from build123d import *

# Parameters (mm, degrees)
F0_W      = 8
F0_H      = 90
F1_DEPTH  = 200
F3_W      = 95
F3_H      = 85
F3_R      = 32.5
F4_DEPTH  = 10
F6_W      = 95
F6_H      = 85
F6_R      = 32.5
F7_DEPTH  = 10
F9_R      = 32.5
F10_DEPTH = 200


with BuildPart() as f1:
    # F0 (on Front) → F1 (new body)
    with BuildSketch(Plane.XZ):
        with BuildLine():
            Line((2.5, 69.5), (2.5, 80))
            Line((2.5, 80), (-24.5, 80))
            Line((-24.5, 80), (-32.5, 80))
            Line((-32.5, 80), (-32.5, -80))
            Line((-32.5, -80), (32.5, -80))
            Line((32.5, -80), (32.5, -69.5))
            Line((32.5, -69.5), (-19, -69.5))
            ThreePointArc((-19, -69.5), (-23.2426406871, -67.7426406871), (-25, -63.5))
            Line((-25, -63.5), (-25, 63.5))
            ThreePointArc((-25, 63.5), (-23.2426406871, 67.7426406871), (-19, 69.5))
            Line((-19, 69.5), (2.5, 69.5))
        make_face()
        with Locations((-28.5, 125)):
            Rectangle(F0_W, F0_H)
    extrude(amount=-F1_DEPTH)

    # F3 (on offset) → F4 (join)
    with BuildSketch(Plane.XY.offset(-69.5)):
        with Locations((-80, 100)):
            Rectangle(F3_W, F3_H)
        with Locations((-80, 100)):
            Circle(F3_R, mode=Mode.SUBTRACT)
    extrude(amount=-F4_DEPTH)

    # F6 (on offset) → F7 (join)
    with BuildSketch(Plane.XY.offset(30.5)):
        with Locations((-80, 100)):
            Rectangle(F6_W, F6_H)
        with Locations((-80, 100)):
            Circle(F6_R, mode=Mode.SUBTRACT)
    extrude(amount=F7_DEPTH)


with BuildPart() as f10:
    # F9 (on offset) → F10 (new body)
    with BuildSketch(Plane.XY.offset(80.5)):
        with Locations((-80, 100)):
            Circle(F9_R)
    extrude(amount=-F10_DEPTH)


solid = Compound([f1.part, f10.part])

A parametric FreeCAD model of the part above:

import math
import FreeCAD as App
import Part
import Sketcher
from FreeCAD import Vector

doc = App.newDocument("Part")
params = doc.addObject("Spreadsheet::Sheet", "Params")
for row, (alias, value) in enumerate([
    ("sketch1_radius", "6 mm"),
    ("sketch1_width", "27 mm"),
    ("sketch1_width2", "8 mm"),
    ("sketch1_width3", "65 mm"),
    ("sketch1_height", "90 mm"),
    ("pad1_length", "200 mm"),
    ("sketch2_diameter", "65 mm"),
    ("sketch2_width", "95 mm"),
    ("sketch2_height", "85 mm"),
    ("pad2_length", "10 mm"),
    ("sketch3_diameter", "65 mm"),
    ("sketch3_width", "95 mm"),
    ("sketch3_height", "85 mm"),
    ("pad3_length", "10 mm"),
    ("sketch4_diameter", "65 mm"),
    ("pad4_length", "200 mm"),
], start=1):
    params.set(f"A{row}", alias)
    params.set(f"B{row}", "=" + value)
    params.setAlias(f"B{row}", alias)

body = doc.addObject("PartDesign::Body", "Body")

# Sketch on XZ plane
sketch1 = body.newObject("Sketcher::SketchObject", "Sketch")
sketch1.AttachmentSupport = (doc.getObject("XZ_Plane"), [""])
sketch1.MapMode = "FlatFace"
sketch1.addGeometry(Part.LineSegment(Vector(2, 70, 0), Vector(2, 80, 0)), False)
sketch1.addGeometry(Part.LineSegment(Vector(2, 80, 0), Vector(-24, 80, 0)), False)
sketch1.addGeometry(Part.LineSegment(Vector(-24, 80, 0), Vector(-24, 170, 0)), False)
sketch1.addGeometry(Part.LineSegment(Vector(-24, 170, 0), Vector(-32, 170, 0)), False)
sketch1.addGeometry(Part.LineSegment(Vector(-32, 170, 0), Vector(-32, -80, 0)), False)
sketch1.addGeometry(Part.LineSegment(Vector(-32, -80, 0), Vector(32, -80, 0)), False)
sketch1.addGeometry(Part.LineSegment(Vector(32, -80, 0), Vector(32, -70, 0)), False)
sketch1.addGeometry(Part.LineSegment(Vector(32, -70, 0), Vector(-19, -70, 0)), False)
sketch1.addGeometry(Part.ArcOfCircle(Part.Circle(Vector(-19, -64, 0), Vector(0, 0, 1), 6), math.radians(180), math.radians(270)), False)
sketch1.addGeometry(Part.LineSegment(Vector(-25, -64, 0), Vector(-25, 64, 0)), False)
sketch1.addGeometry(Part.ArcOfCircle(Part.Circle(Vector(-19, 64, 0), Vector(0, 0, 1), 6), math.radians(90), math.radians(180)), False)
sketch1.addGeometry(Part.LineSegment(Vector(-19, 70, 0), Vector(2, 70, 0)), False)
sketch1.addConstraint(Sketcher.Constraint("Coincident", 0, 2, 1, 1))
sketch1.addConstraint(Sketcher.Constraint("Coincident", 1, 2, 2, 1))
sketch1.addConstraint(Sketcher.Constraint("Coincident", 2, 2, 3, 1))
sketch1.addConstraint(Sketcher.Constraint("Coincident", 3, 2, 4, 1))
sketch1.addConstraint(Sketcher.Constraint("Coincident", 4, 2, 5, 1))
sketch1.addConstraint(Sketcher.Constraint("Coincident", 5, 2, 6, 1))
sketch1.addConstraint(Sketcher.Constraint("Coincident", 6, 2, 7, 1))
sketch1.addConstraint(Sketcher.Constraint("Tangent", 7, 2, 8, 2))
sketch1.addConstraint(Sketcher.Constraint("Tangent", 8, 1, 9, 1))
sketch1.addConstraint(Sketcher.Constraint("Tangent", 9, 2, 10, 2))
sketch1.addConstraint(Sketcher.Constraint("Tangent", 10, 1, 11, 1))
sketch1.addConstraint(Sketcher.Constraint("Coincident", 11, 2, 0, 1))
sketch1.addConstraint(Sketcher.Constraint("Vertical", 0))
sketch1.addConstraint(Sketcher.Constraint("Horizontal", 1))
sketch1.addConstraint(Sketcher.Constraint("Vertical", 2))
sketch1.addConstraint(Sketcher.Constraint("Horizontal", 3))
sketch1.addConstraint(Sketcher.Constraint("Vertical", 4))
sketch1.addConstraint(Sketcher.Constraint("Horizontal", 5))
sketch1.addConstraint(Sketcher.Constraint("Vertical", 6))
sketch1.addConstraint(Sketcher.Constraint("Horizontal", 7))
sketch1.addConstraint(Sketcher.Constraint("Vertical", 9))
sketch1.addConstraint(Sketcher.Constraint("Horizontal", 11))
sketch1.addConstraint(Sketcher.Constraint("Equal", 8, 10))
sketch1.addConstraint(Sketcher.Constraint("Equal", 0, 6))
sketch1.addConstraint(Sketcher.Constraint("Radius", 8, 6.0))
sketch1.addConstraint(Sketcher.Constraint("DistanceX", 1, 2, 1, 1, 27.0))
sketch1.addConstraint(Sketcher.Constraint("DistanceX", 3, 2, 3, 1, 8.0))
sketch1.addConstraint(Sketcher.Constraint("DistanceX", 5, 1, 5, 2, 65.0))
sketch1.addConstraint(Sketcher.Constraint("DistanceY", 2, 1, 2, 2, 90.0))
sketch1.addConstraint(Sketcher.Constraint("DistanceY", 4, 2, 4, 1, 250.0))
sketch1.addConstraint(Sketcher.Constraint("DistanceY", 9, 1, 9, 2, 127.0))
sketch1.addConstraint(Sketcher.Constraint("DistanceX", 7, 2, 7, 1, 51.5))
sketch1.addConstraint(Sketcher.Constraint("DistanceX", 8, 3, -1, 1, 19.0))
sketch1.addConstraint(Sketcher.Constraint("DistanceY", -1, 1, 0, 2, 80.0))
sketch1.setExpression("Constraints[24]", "Params.sketch1_radius")
sketch1.setExpression("Constraints[25]", "Params.sketch1_width")
sketch1.setExpression("Constraints[26]", "Params.sketch1_width2")
sketch1.setExpression("Constraints[27]", "Params.sketch1_width3")
sketch1.setExpression("Constraints[28]", "Params.sketch1_height")
pad1 = body.newObject("PartDesign::Pad", "Pad")
pad1.Profile = sketch1
pad1.setExpression("Length", "Params.pad1_length")
pad1.Reversed = True

# Sketch on XY plane
sketch2 = body.newObject("Sketcher::SketchObject", "Sketch001")
sketch2.AttachmentSupport = (doc.getObject("XY_Plane"), [""])
sketch2.MapMode = "FlatFace"
sketch2.AttachmentOffset = App.Placement(Vector(0, 0, -69.5), App.Rotation())
sketch2.addGeometry(Part.LineSegment(Vector(-128, 142, 0), Vector(-128, 58, 0)), False)
sketch2.addGeometry(Part.LineSegment(Vector(-128, 58, 0), Vector(-32, 58, 0)), False)
sketch2.addGeometry(Part.LineSegment(Vector(-32, 58, 0), Vector(-32, 142, 0)), False)
sketch2.addGeometry(Part.LineSegment(Vector(-32, 142, 0), Vector(-128, 142, 0)), False)
sketch2.addGeometry(Part.Circle(Vector(-80, 100, 0), Vector(0, 0, 1), 32), False)
sketch2.addConstraint(Sketcher.Constraint("Coincident", 0, 2, 1, 1))
sketch2.addConstraint(Sketcher.Constraint("Coincident", 1, 2, 2, 1))
sketch2.addConstraint(Sketcher.Constraint("Coincident", 2, 2, 3, 1))
sketch2.addConstraint(Sketcher.Constraint("Coincident", 3, 2, 0, 1))
sketch2.addConstraint(Sketcher.Constraint("Vertical", 0))
sketch2.addConstraint(Sketcher.Constraint("Horizontal", 1))
sketch2.addConstraint(Sketcher.Constraint("Vertical", 2))
sketch2.addConstraint(Sketcher.Constraint("Horizontal", 3))
sketch2.addConstraint(Sketcher.Constraint("Diameter", 4, 65.0))
sketch2.addConstraint(Sketcher.Constraint("DistanceX", 1, 1, 1, 2, 95.0))
sketch2.addConstraint(Sketcher.Constraint("DistanceY", 0, 2, 0, 1, 85.0))
sketch2.addConstraint(Sketcher.Constraint("DistanceX", 4, 3, -1, 1, 80.0))
sketch2.addConstraint(Sketcher.Constraint("DistanceY", -1, 1, 4, 3, 100.0))
sketch2.addConstraint(Sketcher.Constraint("DistanceX", 0, 2, -1, 1, 127.5))
sketch2.addConstraint(Sketcher.Constraint("DistanceY", -1, 1, 0, 2, 57.5))
sketch2.setExpression("Constraints[8]", "Params.sketch2_diameter")
sketch2.setExpression("Constraints[9]", "Params.sketch2_width")
sketch2.setExpression("Constraints[10]", "Params.sketch2_height")
pad2 = body.newObject("PartDesign::Pad", "Pad001")
pad2.Profile = sketch2
pad2.setExpression("Length", "Params.pad2_length")
pad2.Reversed = True

# Sketch on XY plane
sketch3 = body.newObject("Sketcher::SketchObject", "Sketch002")
sketch3.AttachmentSupport = (doc.getObject("XY_Plane"), [""])
sketch3.MapMode = "FlatFace"
sketch3.AttachmentOffset = App.Placement(Vector(0, 0, 30.5), App.Rotation())
sketch3.addGeometry(Part.LineSegment(Vector(-128, 142, 0), Vector(-128, 58, 0)), False)
sketch3.addGeometry(Part.LineSegment(Vector(-128, 58, 0), Vector(-32, 58, 0)), False)
sketch3.addGeometry(Part.LineSegment(Vector(-32, 58, 0), Vector(-32, 142, 0)), False)
sketch3.addGeometry(Part.LineSegment(Vector(-32, 142, 0), Vector(-128, 142, 0)), False)
sketch3.addGeometry(Part.Circle(Vector(-80, 100, 0), Vector(0, 0, 1), 32), False)
sketch3.addConstraint(Sketcher.Constraint("Coincident", 0, 2, 1, 1))
sketch3.addConstraint(Sketcher.Constraint("Coincident", 1, 2, 2, 1))
sketch3.addConstraint(Sketcher.Constraint("Coincident", 2, 2, 3, 1))
sketch3.addConstraint(Sketcher.Constraint("Coincident", 3, 2, 0, 1))
sketch3.addConstraint(Sketcher.Constraint("Vertical", 0))
sketch3.addConstraint(Sketcher.Constraint("Horizontal", 1))
sketch3.addConstraint(Sketcher.Constraint("Vertical", 2))
sketch3.addConstraint(Sketcher.Constraint("Horizontal", 3))
sketch3.addConstraint(Sketcher.Constraint("Diameter", 4, 65.0))
sketch3.addConstraint(Sketcher.Constraint("DistanceX", 1, 1, 1, 2, 95.0))
sketch3.addConstraint(Sketcher.Constraint("DistanceY", 0, 2, 0, 1, 85.0))
sketch3.addConstraint(Sketcher.Constraint("DistanceX", 4, 3, -1, 1, 80.0))
sketch3.addConstraint(Sketcher.Constraint("DistanceY", -1, 1, 4, 3, 100.0))
sketch3.addConstraint(Sketcher.Constraint("DistanceX", 0, 2, -1, 1, 127.5))
sketch3.addConstraint(Sketcher.Constraint("DistanceY", -1, 1, 0, 2, 57.5))
sketch3.setExpression("Constraints[8]", "Params.sketch3_diameter")
sketch3.setExpression("Constraints[9]", "Params.sketch3_width")
sketch3.setExpression("Constraints[10]", "Params.sketch3_height")
pad3 = body.newObject("PartDesign::Pad", "Pad002")
pad3.Profile = sketch3
pad3.setExpression("Length", "Params.pad3_length")
body2 = doc.addObject("PartDesign::Body", "Body001")

# Sketch on XY plane
sketch4 = body2.newObject("Sketcher::SketchObject", "Sketch003")
sketch4.AttachmentSupport = (doc.getObject("XY_Plane001"), [""])
sketch4.MapMode = "FlatFace"
sketch4.AttachmentOffset = App.Placement(Vector(0, 0, 80.5), App.Rotation())
sketch4.addGeometry(Part.Circle(Vector(-80, 100, 0), Vector(0, 0, 1), 32), False)
sketch4.addConstraint(Sketcher.Constraint("Diameter", 0, 65.0))
sketch4.addConstraint(Sketcher.Constraint("DistanceX", 0, 3, -1, 1, 80.0))
sketch4.addConstraint(Sketcher.Constraint("DistanceY", -1, 1, 0, 3, 100.0))
sketch4.setExpression("Constraints[0]", "Params.sketch4_diameter")
pad4 = body2.newObject("PartDesign::Pad", "Pad003")
pad4.Profile = sketch4
pad4.setExpression("Length", "Params.pad4_length")
pad4.Reversed = True

doc.recompute()
